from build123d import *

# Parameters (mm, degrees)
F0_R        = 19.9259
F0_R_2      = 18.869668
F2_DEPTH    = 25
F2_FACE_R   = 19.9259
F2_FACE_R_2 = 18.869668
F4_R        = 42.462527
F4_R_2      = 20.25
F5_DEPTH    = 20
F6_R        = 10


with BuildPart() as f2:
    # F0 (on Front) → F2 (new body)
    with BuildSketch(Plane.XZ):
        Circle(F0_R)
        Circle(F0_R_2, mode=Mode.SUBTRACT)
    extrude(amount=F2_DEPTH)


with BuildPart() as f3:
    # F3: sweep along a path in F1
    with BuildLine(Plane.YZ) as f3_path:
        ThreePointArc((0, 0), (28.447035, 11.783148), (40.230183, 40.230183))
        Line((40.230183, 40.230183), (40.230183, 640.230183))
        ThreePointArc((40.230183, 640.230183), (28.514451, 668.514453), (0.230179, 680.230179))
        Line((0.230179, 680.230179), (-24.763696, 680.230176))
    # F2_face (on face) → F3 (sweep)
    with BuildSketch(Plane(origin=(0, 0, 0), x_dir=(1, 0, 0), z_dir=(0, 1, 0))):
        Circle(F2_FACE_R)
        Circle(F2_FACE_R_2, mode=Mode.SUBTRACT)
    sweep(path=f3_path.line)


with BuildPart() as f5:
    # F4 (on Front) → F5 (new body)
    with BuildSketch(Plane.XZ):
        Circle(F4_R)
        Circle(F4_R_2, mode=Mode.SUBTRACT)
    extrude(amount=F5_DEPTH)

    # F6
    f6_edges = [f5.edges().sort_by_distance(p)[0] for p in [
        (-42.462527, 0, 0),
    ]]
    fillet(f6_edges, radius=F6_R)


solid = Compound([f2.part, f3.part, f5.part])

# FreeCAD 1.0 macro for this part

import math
import FreeCAD as App
import Part
import Sketcher
from FreeCAD import Vector
Q = App.Units.Quantity


def edges_at(feature, points):
    """Names of the edges that pass closest to the given points."""
    edges = feature.Shape.Edges
    near = lambda p: min(range(len(edges)), key=lambda i: edges[i].distToShape(Part.Vertex(*p))[0])
    return sorted({f"Edge{near(p) + 1}" for p in points})

doc = App.newDocument("Part")
body = doc.addObject("PartDesign::Body", "Body")

# Sketch on XZ plane
sketch1 = body.newObject("Sketcher::SketchObject", "Sketch")
sketch1.AttachmentSupport = (doc.getObject("XZ_Plane"), [""])
sketch1.MapMode = "FlatFace"
sketch1.addGeometry(Part.Circle(Vector(0, 0, 0), Vector(0, 0, 1), 19.9259), False)
sketch1.addGeometry(Part.Circle(Vector(0, 0, 0), Vector(0, 0, 1), 18.869668), False)
sketch1.addConstraint(Sketcher.Constraint("Coincident", 0, 3, -1, 1))
sketch1.addConstraint(Sketcher.Constraint("Coincident", 1, 3, -1, 1))
sketch1.addConstraint(Sketcher.Constraint("Diameter", 0, Q("39.8518 mm")))
sketch1.addConstraint(Sketcher.Constraint("Diameter", 1, Q("37.739336 mm")))
pad1 = body.newObject("PartDesign::Pad", "Pad")
pad1.Profile = sketch1
pad1.Length = 25
body2 = doc.addObject("PartDesign::Body", "Body001")

# Sketch on XZ plane
sketch2 = body2.newObject("Sketcher::SketchObject", "Sketch001")
sketch2.AttachmentSupport = (doc.getObject("XZ_Plane001"), [""])
sketch2.MapMode = "FlatFace"
sketch2.addGeometry(Part.Circle(Vector(0, 0, 0), Vector(0, 0, 1), 19.9259), False)
sketch2.addGeometry(Part.Circle(Vector(0, 0, 0), Vector(0, 0, 1), 18.869668), False)
sketch2.addConstraint(Sketcher.Constraint("Coincident", 0, 3, -1, 1))
sketch2.addConstraint(Sketcher.Constraint("Coincident", 1, 3, -1, 1))
sketch2.addConstraint(Sketcher.Constraint("Diameter", 0, Q("39.8518 mm")))
sketch2.addConstraint(Sketcher.Constraint("Diameter", 1, Q("37.739336 mm")))

# Sketch on YZ plane
sketch3 = body2.newObject("Sketcher::SketchObject", "Sketch002")
sketch3.AttachmentSupport = (doc.getObject("YZ_Plane001"), [""])
sketch3.MapMode = "FlatFace"
sketch3.addGeometry(Part.ArcOfCircle(Part.Circle(Vector(-0.000001, 40.230184, 0), Vector(0, 0, 1), 40.230184), math.radians(-89.999999), math.radians(-0.000001)), False)
sketch3.addGeometry(Part.LineSegment(Vector(40.230183, 40.230183, 0), Vector(40.230183, 640.230183, 0)), False)
sketch3.addGeometry(Part.ArcOfCircle(Part.Circle(Vector(0.230182, 640.230178, 0), Vector(0, 0, 1), 40.000001), math.radians(0.000007), math.radians(90.000005)), False)
sketch3.addGeometry(Part.LineSegment(Vector(0.230179, 680.230179, 0), Vector(-24.763696, 680.230176, 0)), False)
sketch3.addConstraint(Sketcher.Constraint("Tangent", 0, 2, 1, 1))
sketch3.addConstraint(Sketcher.Constraint("Tangent", 1, 2, 2, 1))
sketch3.addConstraint(Sketcher.Constraint("Tangent", 2, 2, 3, 1))
sketch3.addConstraint(Sketcher.Constraint("Vertical", 1))
sketch3.addConstraint(Sketcher.Constraint("Coincident", 0, 1, -1, 1))
sketch3.addConstraint(Sketcher.Constraint("PointOnObject", 0, 3, -2))
sketch3.addConstraint(Sketcher.Constraint("Radius", 2, Q("40.000001 mm")))
sketch3.addConstraint(Sketcher.Constraint("DistanceY", 1, 1, 1, 2, Q("600 mm")))
sketch3.addConstraint(Sketcher.Constraint("Angle", 3, Q("-179.999993 deg")))
sketch3.addConstraint(Sketcher.Constraint("Radius", 0, Q("40.230184 mm")))
sketch3.addConstraint(Sketcher.Constraint("DistanceX", 3, 2, 2, 3, Q("24.993878 mm")))
doc.recompute()

additivepipe = body2.newObject("PartDesign::AdditivePipe", "AdditivePipe")
additivepipe.Profile = sketch2
additivepipe.Spine = (sketch3, ["Edge1", "Edge2", "Edge3", "Edge4"])
body3 = doc.addObject("PartDesign::Body", "Body002")

# Sketch on XZ plane
sketch4 = body3.newObject("Sketcher::SketchObject", "Sketch003")
sketch4.AttachmentSupport = (doc.getObject("XZ_Plane002"), [""])
sketch4.MapMode = "FlatFace"
sketch4.addGeometry(Part.Circle(Vector(0, 0, 0), Vector(0, 0, 1), 42.462527), False)
sketch4.addGeometry(Part.Circle(Vector(0, 0, 0), Vector(0, 0, 1), 20.25), False)
sketch4.addConstraint(Sketcher.Constraint("Coincident", 0, 3, -1, 1))
sketch4.addConstraint(Sketcher.Constraint("Coincident", 1, 3, -1, 1))
sketch4.addConstraint(Sketcher.Constraint("Diameter", 1, Q("40.5 mm")))
sketch4.addConstraint(Sketcher.Constraint("Diameter", 0, Q("84.925054 mm")))
pad2 = body3.newObject("PartDesign::Pad", "Pad001")
pad2.Profile = sketch4
pad2.Length = 20
doc.recompute()

fillet = body3.newObject("PartDesign::Fillet", "Fillet")
fillet.Base = (pad2, edges_at(pad2, [(-42.463, 0, 0)]))
fillet.Radius = 10

doc.recompute()
